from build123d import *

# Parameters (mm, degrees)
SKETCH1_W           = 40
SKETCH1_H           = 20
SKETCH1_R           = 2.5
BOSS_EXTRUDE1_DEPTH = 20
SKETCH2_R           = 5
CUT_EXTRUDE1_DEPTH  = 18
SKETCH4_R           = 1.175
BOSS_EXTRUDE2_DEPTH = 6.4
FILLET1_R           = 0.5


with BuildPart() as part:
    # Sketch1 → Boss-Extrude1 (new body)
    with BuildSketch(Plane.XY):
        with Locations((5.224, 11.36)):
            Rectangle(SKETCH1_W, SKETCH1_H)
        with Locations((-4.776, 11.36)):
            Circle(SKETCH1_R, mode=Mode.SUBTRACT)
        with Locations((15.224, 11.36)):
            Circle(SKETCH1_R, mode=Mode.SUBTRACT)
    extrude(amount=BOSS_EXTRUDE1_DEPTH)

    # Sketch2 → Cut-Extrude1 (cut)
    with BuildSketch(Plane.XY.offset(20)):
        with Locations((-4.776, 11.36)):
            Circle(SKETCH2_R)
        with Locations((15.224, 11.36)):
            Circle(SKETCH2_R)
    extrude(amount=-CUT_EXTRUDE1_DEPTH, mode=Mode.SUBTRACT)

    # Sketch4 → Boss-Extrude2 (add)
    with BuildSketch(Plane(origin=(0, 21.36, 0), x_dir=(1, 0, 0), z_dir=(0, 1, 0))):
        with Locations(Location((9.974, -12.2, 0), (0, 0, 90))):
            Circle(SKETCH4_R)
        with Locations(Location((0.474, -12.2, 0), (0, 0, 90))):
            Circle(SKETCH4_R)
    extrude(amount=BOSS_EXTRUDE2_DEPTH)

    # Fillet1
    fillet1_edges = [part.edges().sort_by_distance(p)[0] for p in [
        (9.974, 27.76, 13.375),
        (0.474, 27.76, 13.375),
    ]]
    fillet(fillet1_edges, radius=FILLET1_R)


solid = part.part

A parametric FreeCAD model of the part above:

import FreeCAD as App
import Part
import Sketcher

V = App.Vector


def edges_at(feature, points):
    """Names of the edges that pass closest to the given points."""
    edges = feature.Shape.Edges
    near = lambda p: min(range(len(edges)), key=lambda i: edges[i].distToShape(Part.Vertex(*p))[0])
    return sorted({f"Edge{near(p) + 1}" for p in points})

doc = App.newDocument("Part")
body = doc.addObject("PartDesign::Body", "Body")

# Sketch on XY plane
sketch1 = doc.addObject("Sketcher::SketchObject", "Sketch")
body.addObject(sketch1)
sketch1.AttachmentSupport = (doc.XY_Plane, [""])
sketch1.MapMode = "FlatFace"
sketch1.addGeometry([
    Part.LineSegment(V(-14.8, 21.4, 0), V(-14.8, 1.4, 0)),  # 0
    Part.LineSegment(V(-14.8, 1.4, 0), V(25.2, 1.4, 0)),  # 1
    Part.LineSegment(V(25.2, 1.4, 0), V(25.2, 21.4, 0)),  # 2
    Part.LineSegment(V(25.2, 21.4, 0), V(-14.8, 21.4, 0)),  # 3
    Part.Circle(V(-4.8, 11.4, 0), V(0, 0, 1), 2.5),  # 4
    Part.Circle(V(15.2, 11.4, 0), V(0, 0, 1), 2.5),  # 5
], False)
sketch1.addConstraint([
    Sketcher.Constraint("Coincident", 0, 2, 1, 1),
    Sketcher.Constraint("Coincident", 1, 2, 2, 1),
    Sketcher.Constraint("Coincident", 2, 2, 3, 1),
    Sketcher.Constraint("Coincident", 3, 2, 0, 1),
    Sketcher.Constraint("Vertical", 0),
    Sketcher.Constraint("Horizontal", 1),
    Sketcher.Constraint("Vertical", 2),
    Sketcher.Constraint("Horizontal", 3),
    Sketcher.Constraint("Equal", 4, 5),
    Sketcher.Constraint("Horizontal", 4, 3, 5, 3),
    Sketcher.Constraint("Diameter", 4, 5.0),
    Sketcher.Constraint("DistanceX", 1, 1, 1, 2, 40.0),
    Sketcher.Constraint("DistanceY", 0, 2, 0, 1, 20.0),
    Sketcher.Constraint("DistanceX", 4, 3, 5, 3, 20.0),
    Sketcher.Constraint("DistanceX", 0, 2, 4, 3, 10.0),
    Sketcher.Constraint("DistanceY", 0, 2, 4, 3, 10.0),
    Sketcher.Constraint("DistanceY", -1, 1, 4, 3, 11.36),
    Sketcher.Constraint("DistanceX", 4, 3, -1, 1, 4.776),
])
pad1 = doc.addObject("PartDesign::Pad", "Pad")
body.addObject(pad1)
pad1.Profile = sketch1
pad1.Length = 20

# Sketch on XY plane
sketch2 = doc.addObject("Sketcher::SketchObject", "Sketch001")
body.addObject(sketch2)
sketch2.AttachmentSupport = (doc.XY_Plane, [""])
sketch2.MapMode = "FlatFace"
sketch2.AttachmentOffset = App.Placement(V(0, 0, 20), App.Rotation())
sketch2.addGeometry([
    Part.Circle(V(-5, 11, 0), V(0, 0, 1), 5),
    Part.Circle(V(15, 11, 0), V(0, 0, 1), 5),
], False)
sketch2.addConstraint([
    Sketcher.Constraint("Equal", 0, 1),
    Sketcher.Constraint("Horizontal", 0, 3, 1, 3),
    Sketcher.Constraint("Diameter", 0, 10.0),
    Sketcher.Constraint("DistanceX", 0, 3, 1, 3, 20.0),
    Sketcher.Constraint("DistanceY", -1, 1, 0, 3, 11.36),
    Sketcher.Constraint("DistanceX", 0, 3, -1, 1, 4.776),
])
pocket1 = doc.addObject("PartDesign::Pocket", "Pocket")
body.addObject(pocket1)
pocket1.Profile = sketch2
pocket1.Length = 18

# Sketch on XZ plane
sketch3 = doc.addObject("Sketcher::SketchObject", "Sketch002")
body.addObject(sketch3)
sketch3.AttachmentSupport = (doc.XZ_Plane, [""])
sketch3.MapMode = "FlatFace"
sketch3.AttachmentOffset = App.Placement(V(0, 0, -21.36), App.Rotation())
sketch3.addGeometry([
    Part.Circle(V(10, 12.2, 0), V(0, 0, 1), 1.2),
    Part.Circle(V(0.5, 12.2, 0), V(0, 0, 1), 1.2),
], False)
sketch3.addConstraint([
    Sketcher.Constraint("Equal", 0, 1),
    Sketcher.Constraint("Horizontal", 0, 3, 1, 3),
    Sketcher.Constraint("Diameter", 0, 2.35),
    Sketcher.Constraint("DistanceY", -1, 1, 0, 3, 12.2),
    Sketcher.Constraint("DistanceX", 1, 3, 0, 3, 9.5),
    Sketcher.Constraint("DistanceX", -1, 1, 0, 3, 9.974),
])
pad2 = doc.addObject("PartDesign::Pad", "Pad001")
body.addObject(pad2)
pad2.Profile = sketch3
pad2.Length = 6.4
pad2.Reversed = True
doc.recompute()

fillet = doc.addObject("PartDesign::Fillet", "Fillet")
body.addObject(fillet)
fillet.Base = (pad2, edges_at(pad2, [(9.974, 27.76, 13.375), (0.474, 27.76, 13.375)]))
fillet.Radius = 0.5

doc.recompute()
